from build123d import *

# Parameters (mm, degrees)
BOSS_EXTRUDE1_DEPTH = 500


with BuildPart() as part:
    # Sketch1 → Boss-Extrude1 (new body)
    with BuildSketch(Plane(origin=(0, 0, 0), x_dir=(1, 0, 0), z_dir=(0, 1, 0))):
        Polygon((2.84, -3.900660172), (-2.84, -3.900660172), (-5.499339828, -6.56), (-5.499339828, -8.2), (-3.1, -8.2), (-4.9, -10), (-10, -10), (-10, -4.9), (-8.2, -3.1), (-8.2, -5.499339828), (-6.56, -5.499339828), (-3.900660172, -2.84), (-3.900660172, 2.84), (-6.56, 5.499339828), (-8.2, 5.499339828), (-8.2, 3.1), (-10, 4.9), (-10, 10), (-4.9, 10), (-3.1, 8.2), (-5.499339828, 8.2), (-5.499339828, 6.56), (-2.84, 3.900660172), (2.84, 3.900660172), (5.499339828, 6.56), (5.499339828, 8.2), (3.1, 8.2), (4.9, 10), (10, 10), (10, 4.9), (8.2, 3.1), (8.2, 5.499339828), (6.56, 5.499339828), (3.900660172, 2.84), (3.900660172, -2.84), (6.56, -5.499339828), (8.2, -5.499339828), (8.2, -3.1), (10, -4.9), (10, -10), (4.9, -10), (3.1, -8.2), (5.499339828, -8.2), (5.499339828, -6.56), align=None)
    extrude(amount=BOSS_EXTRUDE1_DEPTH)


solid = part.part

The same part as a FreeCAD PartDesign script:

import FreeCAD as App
import Part
import Sketcher

V = App.Vector
Q = App.Units.Quantity


def add_polygon(sketch, points):
    """Adds a closed chain of lines whose ends are joined by coincident constraints."""
    first, n = sketch.GeometryCount, len(points)
    for a, b in zip(points, points[1:] + points[:1]):
        sketch.addGeometry(Part.LineSegment(App.Vector(*a, 0), App.Vector(*b, 0)), False)
    for i in range(n):
        sketch.addConstraint(Sketcher.Constraint("Coincident", first + i, 2, first + (i + 1) % n, 1))

doc = App.newDocument("Part")
params = doc.addObject("Spreadsheet::Sheet", "Params")
for row, (alias, value) in enumerate([
    ("sketch1_width", "5.1 mm"),
    ("sketch1_width2", "5.68 mm"),
    ("sketch1_width3", "1.64 mm"),
    ("pad1_length", "500 mm"),
], start=1):
    params.set(f"A{row}", alias)
    params.set(f"B{row}", "=" + value)
    params.setAlias(f"B{row}", alias)

body = doc.addObject("PartDesign::Body", "Body")

# Sketch on XZ plane
sketch1 = body.newObject("Sketcher::SketchObject", "Sketch")
sketch1.AttachmentSupport = (doc.getObject("XZ_Plane"), [""])
sketch1.MapMode = "FlatFace"
add_polygon(sketch1, [(-2.8, 3.9), (2.8, 3.9), (5.5, 6.6), (5.5, 8.2), (3.1, 8.2), (4.9, 10), (10, 10), (10, 4.9), (8.2, 3.1), (8.2, 5.5), (6.6, 5.5), (3.9, 2.8), (3.9, -2.8), (6.6, -5.5), (8.2, -5.5), (8.2, -3.1), (10, -4.9), (10, -10), (4.9, -10), (3.1, -8.2), (5.5, -8.2), (5.5, -6.6), (2.8, -3.9), (-2.8, -3.9), (-5.5, -6.6), (-5.5, -8.2), (-3.1, -8.2), (-4.9, -10), (-10, -10), (-10, -4.9), (-8.2, -3.1), (-8.2, -5.5), (-6.6, -5.5), (-3.9, -2.8), (-3.9, 2.8), (-6.6, 5.5), (-8.2, 5.5), (-8.2, 3.1), (-10, 4.9), (-10, 10), (-4.9, 10), (-3.1, 8.2), (-5.5, 8.2), (-5.5, 6.6)])  # lines 0-43
sketch1.addConstraint([
    Sketcher.Constraint("Horizontal", 0),
    Sketcher.Constraint("Vertical", 2),
    Sketcher.Constraint("Horizontal", 3),
    Sketcher.Constraint("Horizontal", 5),
    Sketcher.Constraint("Vertical", 6),
    Sketcher.Constraint("Vertical", 8),
    Sketcher.Constraint("Horizontal", 9),
    Sketcher.Constraint("Vertical", 11),
    Sketcher.Constraint("Horizontal", 13),
    Sketcher.Constraint("Vertical", 14),
    Sketcher.Constraint("Vertical", 16),
    Sketcher.Constraint("Horizontal", 17),
    Sketcher.Constraint("Horizontal", 19),
    Sketcher.Constraint("Vertical", 20),
    Sketcher.Constraint("Horizontal", 22),
    Sketcher.Constraint("Vertical", 24),
    Sketcher.Constraint("Horizontal", 25),
    Sketcher.Constraint("Horizontal", 27),
    Sketcher.Constraint("Vertical", 28),
    Sketcher.Constraint("Vertical", 30),
    Sketcher.Constraint("Horizontal", 31),
    Sketcher.Constraint("Vertical", 33),
    Sketcher.Constraint("Horizontal", 35),
    Sketcher.Constraint("Vertical", 36),
    Sketcher.Constraint("Vertical", 38),
    Sketcher.Constraint("Horizontal", 39),
    Sketcher.Constraint("Horizontal", 41),
    Sketcher.Constraint("Vertical", 42),
    Sketcher.Constraint("Symmetric", 0, 2, 22, 2, -1, 1),
    Sketcher.Constraint("Symmetric", 1, 2, 23, 2, -1, 1),
    Sketcher.Constraint("Symmetric", 3, 2, 25, 2, -1, 1),
    Sketcher.Constraint("Symmetric", 4, 2, 26, 2, -1, 1),
    Sketcher.Constraint("Symmetric", 6, 2, 28, 2, -1, 1),
    Sketcher.Constraint("Symmetric", 7, 2, 29, 2, -1, 1),
    Sketcher.Constraint("Symmetric", 9, 2, 31, 2, -1, 1),
    Sketcher.Constraint("Symmetric", 10, 2, 32, 2, -1, 1),
    Sketcher.Constraint("Symmetric", 12, 2, 34, 2, -1, 1),
    Sketcher.Constraint("Symmetric", 14, 2, 36, 2, -1, 1),
    Sketcher.Constraint("Symmetric", 15, 2, 37, 2, -1, 1),
    Sketcher.Constraint("Symmetric", 17, 2, 39, 2, -1, 1),
    Sketcher.Constraint("Symmetric", 18, 2, 40, 2, -1, 1),
    Sketcher.Constraint("Symmetric", 20, 2, 42, 2, -1, 1),
    Sketcher.Constraint("Symmetric", 20, 2, 23, 2, -2),
    Sketcher.Constraint("Symmetric", 18, 2, 25, 2, -2),
    Sketcher.Constraint("Symmetric", 17, 2, 26, 2, -2),
    Sketcher.Constraint("Symmetric", 15, 2, 28, 2, -2),
    Sketcher.Constraint("Symmetric", 14, 2, 29, 2, -2),
    Sketcher.Constraint("Symmetric", 12, 2, 31, 2, -2),
    Sketcher.Constraint("Parallel", 1, 4),
    Sketcher.Constraint("Parallel", 4, 7),
    Sketcher.Constraint("Parallel", 7, 10),
    Sketcher.Constraint("Perpendicular", 10, 12),
    Sketcher.Constraint("Parallel", 12, 15),
    Sketcher.Constraint("Parallel", 18, 21),
    Sketcher.Constraint("Perpendicular", 32, 34),
    Sketcher.Constraint("Parallel", 40, 43),
    Sketcher.Constraint("Equal", 35, 2),
    Sketcher.Constraint("Equal", 39, 6),
    Sketcher.Constraint("Equal", 41, 8),
    Sketcher.Constraint("Equal", 22, 11),
    Sketcher.Constraint("Equal", 4, 7),
    Sketcher.Constraint("Equal", 1, 10),
    Sketcher.Constraint("DistanceX", 5, 1, 5, 2, Q("5.1 mm")),
    Sketcher.Constraint("DistanceY", -1, 1, 4, 2, Q("10 mm")),
    Sketcher.Constraint("DistanceY", 15, 2, 7, 2, Q("8 mm")),
    Sketcher.Constraint("DistanceX", 0, 1, 0, 2, Q("5.68 mm")),
    Sketcher.Constraint("DistanceX", 9, 2, 9, 1, Q("1.64 mm")),
    Sketcher.Constraint("DistanceX", 3, 2, 3, 1, Q("2.39934 mm")),
])
sketch1.setExpression("Constraints[106]", "Params.sketch1_width")
sketch1.setExpression("Constraints[109]", "Params.sketch1_width2")
sketch1.setExpression("Constraints[110]", "Params.sketch1_width3")
pad1 = body.newObject("PartDesign::Pad", "Pad")
pad1.Profile = sketch1
pad1.setExpression("Length", "Params.pad1_length")
pad1.Reversed = True

doc.recompute()
